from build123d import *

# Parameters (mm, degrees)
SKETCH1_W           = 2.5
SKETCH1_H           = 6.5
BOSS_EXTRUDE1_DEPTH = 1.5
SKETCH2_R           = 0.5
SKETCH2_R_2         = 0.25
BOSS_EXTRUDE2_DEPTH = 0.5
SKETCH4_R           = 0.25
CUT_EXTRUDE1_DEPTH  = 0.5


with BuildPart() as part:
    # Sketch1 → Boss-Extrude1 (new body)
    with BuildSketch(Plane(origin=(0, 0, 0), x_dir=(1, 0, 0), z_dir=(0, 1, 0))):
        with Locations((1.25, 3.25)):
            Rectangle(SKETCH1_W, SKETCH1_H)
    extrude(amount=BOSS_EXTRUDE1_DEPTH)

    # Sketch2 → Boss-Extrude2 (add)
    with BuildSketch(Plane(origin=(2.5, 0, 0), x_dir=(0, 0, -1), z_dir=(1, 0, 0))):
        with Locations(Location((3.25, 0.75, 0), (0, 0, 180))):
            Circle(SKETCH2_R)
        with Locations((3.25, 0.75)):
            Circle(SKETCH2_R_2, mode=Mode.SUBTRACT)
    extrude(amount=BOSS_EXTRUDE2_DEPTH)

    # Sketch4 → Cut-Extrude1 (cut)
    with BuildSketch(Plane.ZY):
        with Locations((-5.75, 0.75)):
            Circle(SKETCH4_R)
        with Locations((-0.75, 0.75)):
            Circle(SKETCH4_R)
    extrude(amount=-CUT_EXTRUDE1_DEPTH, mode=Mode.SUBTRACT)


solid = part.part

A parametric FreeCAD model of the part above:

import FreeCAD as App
import Part
import Sketcher
from FreeCAD import Vector
Q = App.Units.Quantity

doc = App.newDocument("Part")
body = doc.addObject("PartDesign::Body", "Body")

# Sketch on XZ plane
sketch1 = body.newObject("Sketcher::SketchObject", "Sketch")
sketch1.AttachmentSupport = (doc.getObject("XZ_Plane"), [""])
sketch1.MapMode = "FlatFace"
sketch1.addGeometry(Part.LineSegment(Vector(0, -6.5, 0), Vector(0, 0, 0)), False)
sketch1.addGeometry(Part.LineSegment(Vector(0, 0, 0), Vector(2.5, 0, 0)), False)
sketch1.addGeometry(Part.LineSegment(Vector(2.5, 0, 0), Vector(2.5, -6.5, 0)), False)
sketch1.addGeometry(Part.LineSegment(Vector(2.5, -6.5, 0), Vector(0, -6.5, 0)), False)
sketch1.addConstraint(Sketcher.Constraint("Coincident", 0, 2, 1, 1))
sketch1.addConstraint(Sketcher.Constraint("Coincident", 1, 2, 2, 1))
sketch1.addConstraint(Sketcher.Constraint("Coincident", 2, 2, 3, 1))
sketch1.addConstraint(Sketcher.Constraint("Coincident", 3, 2, 0, 1))
sketch1.addConstraint(Sketcher.Constraint("Vertical", 0))
sketch1.addConstraint(Sketcher.Constraint("Horizontal", 1))
sketch1.addConstraint(Sketcher.Constraint("Vertical", 2))
sketch1.addConstraint(Sketcher.Constraint("Horizontal", 3))
sketch1.addConstraint(Sketcher.Constraint("Coincident", 0, 2, -1, 1))
sketch1.addConstraint(Sketcher.Constraint("DistanceX", 1, 1, 1, 2, Q("2.5 mm")))
sketch1.addConstraint(Sketcher.Constraint("DistanceY", 0, 1, 0, 2, Q("6.5 mm")))
pad1 = body.newObject("PartDesign::Pad", "Pad")
pad1.Profile = sketch1
pad1.Length = 1.5
pad1.Reversed = True

# Sketch on YZ plane
sketch2 = body.newObject("Sketcher::SketchObject", "Sketch001")
sketch2.AttachmentSupport = (doc.getObject("YZ_Plane"), [""])
sketch2.MapMode = "FlatFace"
sketch2.AttachmentOffset = App.Placement(Vector(0, 0, 2.5), App.Rotation())
sketch2.addGeometry(Part.Circle(Vector(0.75, -3.25, 0), Vector(0, 0, 1), 0.5), False)
sketch2.addGeometry(Part.Circle(Vector(0.75, -3.25, 0), Vector(0, 0, 1), 0.25), False)
sketch2.addConstraint(Sketcher.Constraint("Coincident", 1, 3, 0, 3))
sketch2.addConstraint(Sketcher.Constraint("Diameter", 0, Q("1 mm")))
sketch2.addConstraint(Sketcher.Constraint("Diameter", 1, Q("0.5 mm")))
sketch2.addConstraint(Sketcher.Constraint("DistanceX", -1, 1, 0, 3, Q("0.75 mm")))
sketch2.addConstraint(Sketcher.Constraint("DistanceY", 0, 3, -1, 1, Q("3.25 mm")))
pad2 = body.newObject("PartDesign::Pad", "Pad001")
pad2.Profile = sketch2
pad2.Length = 0.5

# Sketch on YZ plane
sketch3 = body.newObject("Sketcher::SketchObject", "Sketch002")
sketch3.AttachmentSupport = (doc.getObject("YZ_Plane"), [""])
sketch3.MapMode = "FlatFace"
sketch3.addGeometry(Part.Circle(Vector(0.75, -5.75, 0), Vector(0, 0, 1), 0.25), False)
sketch3.addGeometry(Part.Circle(Vector(0.75, -0.75, 0), Vector(0, 0, 1), 0.25), False)
sketch3.addConstraint(Sketcher.Constraint("Equal", 0, 1))
sketch3.addConstraint(Sketcher.Constraint("Vertical", 0, 3, 1, 3))
sketch3.addConstraint(Sketcher.Constraint("Diameter", 0, Q("0.5 mm")))
sketch3.addConstraint(Sketcher.Constraint("DistanceY", 0, 3, 1, 3, Q("5 mm")))
sketch3.addConstraint(Sketcher.Constraint("DistanceX", -1, 1, 0, 3, Q("0.75 mm")))
sketch3.addConstraint(Sketcher.Constraint("DistanceY", 0, 3, -1, 1, Q("5.75 mm")))
pocket1 = body.newObject("PartDesign::Pocket", "Pocket")
pocket1.Profile = sketch3
pocket1.Length = 0.5
pocket1.Reversed = True

doc.recompute()
